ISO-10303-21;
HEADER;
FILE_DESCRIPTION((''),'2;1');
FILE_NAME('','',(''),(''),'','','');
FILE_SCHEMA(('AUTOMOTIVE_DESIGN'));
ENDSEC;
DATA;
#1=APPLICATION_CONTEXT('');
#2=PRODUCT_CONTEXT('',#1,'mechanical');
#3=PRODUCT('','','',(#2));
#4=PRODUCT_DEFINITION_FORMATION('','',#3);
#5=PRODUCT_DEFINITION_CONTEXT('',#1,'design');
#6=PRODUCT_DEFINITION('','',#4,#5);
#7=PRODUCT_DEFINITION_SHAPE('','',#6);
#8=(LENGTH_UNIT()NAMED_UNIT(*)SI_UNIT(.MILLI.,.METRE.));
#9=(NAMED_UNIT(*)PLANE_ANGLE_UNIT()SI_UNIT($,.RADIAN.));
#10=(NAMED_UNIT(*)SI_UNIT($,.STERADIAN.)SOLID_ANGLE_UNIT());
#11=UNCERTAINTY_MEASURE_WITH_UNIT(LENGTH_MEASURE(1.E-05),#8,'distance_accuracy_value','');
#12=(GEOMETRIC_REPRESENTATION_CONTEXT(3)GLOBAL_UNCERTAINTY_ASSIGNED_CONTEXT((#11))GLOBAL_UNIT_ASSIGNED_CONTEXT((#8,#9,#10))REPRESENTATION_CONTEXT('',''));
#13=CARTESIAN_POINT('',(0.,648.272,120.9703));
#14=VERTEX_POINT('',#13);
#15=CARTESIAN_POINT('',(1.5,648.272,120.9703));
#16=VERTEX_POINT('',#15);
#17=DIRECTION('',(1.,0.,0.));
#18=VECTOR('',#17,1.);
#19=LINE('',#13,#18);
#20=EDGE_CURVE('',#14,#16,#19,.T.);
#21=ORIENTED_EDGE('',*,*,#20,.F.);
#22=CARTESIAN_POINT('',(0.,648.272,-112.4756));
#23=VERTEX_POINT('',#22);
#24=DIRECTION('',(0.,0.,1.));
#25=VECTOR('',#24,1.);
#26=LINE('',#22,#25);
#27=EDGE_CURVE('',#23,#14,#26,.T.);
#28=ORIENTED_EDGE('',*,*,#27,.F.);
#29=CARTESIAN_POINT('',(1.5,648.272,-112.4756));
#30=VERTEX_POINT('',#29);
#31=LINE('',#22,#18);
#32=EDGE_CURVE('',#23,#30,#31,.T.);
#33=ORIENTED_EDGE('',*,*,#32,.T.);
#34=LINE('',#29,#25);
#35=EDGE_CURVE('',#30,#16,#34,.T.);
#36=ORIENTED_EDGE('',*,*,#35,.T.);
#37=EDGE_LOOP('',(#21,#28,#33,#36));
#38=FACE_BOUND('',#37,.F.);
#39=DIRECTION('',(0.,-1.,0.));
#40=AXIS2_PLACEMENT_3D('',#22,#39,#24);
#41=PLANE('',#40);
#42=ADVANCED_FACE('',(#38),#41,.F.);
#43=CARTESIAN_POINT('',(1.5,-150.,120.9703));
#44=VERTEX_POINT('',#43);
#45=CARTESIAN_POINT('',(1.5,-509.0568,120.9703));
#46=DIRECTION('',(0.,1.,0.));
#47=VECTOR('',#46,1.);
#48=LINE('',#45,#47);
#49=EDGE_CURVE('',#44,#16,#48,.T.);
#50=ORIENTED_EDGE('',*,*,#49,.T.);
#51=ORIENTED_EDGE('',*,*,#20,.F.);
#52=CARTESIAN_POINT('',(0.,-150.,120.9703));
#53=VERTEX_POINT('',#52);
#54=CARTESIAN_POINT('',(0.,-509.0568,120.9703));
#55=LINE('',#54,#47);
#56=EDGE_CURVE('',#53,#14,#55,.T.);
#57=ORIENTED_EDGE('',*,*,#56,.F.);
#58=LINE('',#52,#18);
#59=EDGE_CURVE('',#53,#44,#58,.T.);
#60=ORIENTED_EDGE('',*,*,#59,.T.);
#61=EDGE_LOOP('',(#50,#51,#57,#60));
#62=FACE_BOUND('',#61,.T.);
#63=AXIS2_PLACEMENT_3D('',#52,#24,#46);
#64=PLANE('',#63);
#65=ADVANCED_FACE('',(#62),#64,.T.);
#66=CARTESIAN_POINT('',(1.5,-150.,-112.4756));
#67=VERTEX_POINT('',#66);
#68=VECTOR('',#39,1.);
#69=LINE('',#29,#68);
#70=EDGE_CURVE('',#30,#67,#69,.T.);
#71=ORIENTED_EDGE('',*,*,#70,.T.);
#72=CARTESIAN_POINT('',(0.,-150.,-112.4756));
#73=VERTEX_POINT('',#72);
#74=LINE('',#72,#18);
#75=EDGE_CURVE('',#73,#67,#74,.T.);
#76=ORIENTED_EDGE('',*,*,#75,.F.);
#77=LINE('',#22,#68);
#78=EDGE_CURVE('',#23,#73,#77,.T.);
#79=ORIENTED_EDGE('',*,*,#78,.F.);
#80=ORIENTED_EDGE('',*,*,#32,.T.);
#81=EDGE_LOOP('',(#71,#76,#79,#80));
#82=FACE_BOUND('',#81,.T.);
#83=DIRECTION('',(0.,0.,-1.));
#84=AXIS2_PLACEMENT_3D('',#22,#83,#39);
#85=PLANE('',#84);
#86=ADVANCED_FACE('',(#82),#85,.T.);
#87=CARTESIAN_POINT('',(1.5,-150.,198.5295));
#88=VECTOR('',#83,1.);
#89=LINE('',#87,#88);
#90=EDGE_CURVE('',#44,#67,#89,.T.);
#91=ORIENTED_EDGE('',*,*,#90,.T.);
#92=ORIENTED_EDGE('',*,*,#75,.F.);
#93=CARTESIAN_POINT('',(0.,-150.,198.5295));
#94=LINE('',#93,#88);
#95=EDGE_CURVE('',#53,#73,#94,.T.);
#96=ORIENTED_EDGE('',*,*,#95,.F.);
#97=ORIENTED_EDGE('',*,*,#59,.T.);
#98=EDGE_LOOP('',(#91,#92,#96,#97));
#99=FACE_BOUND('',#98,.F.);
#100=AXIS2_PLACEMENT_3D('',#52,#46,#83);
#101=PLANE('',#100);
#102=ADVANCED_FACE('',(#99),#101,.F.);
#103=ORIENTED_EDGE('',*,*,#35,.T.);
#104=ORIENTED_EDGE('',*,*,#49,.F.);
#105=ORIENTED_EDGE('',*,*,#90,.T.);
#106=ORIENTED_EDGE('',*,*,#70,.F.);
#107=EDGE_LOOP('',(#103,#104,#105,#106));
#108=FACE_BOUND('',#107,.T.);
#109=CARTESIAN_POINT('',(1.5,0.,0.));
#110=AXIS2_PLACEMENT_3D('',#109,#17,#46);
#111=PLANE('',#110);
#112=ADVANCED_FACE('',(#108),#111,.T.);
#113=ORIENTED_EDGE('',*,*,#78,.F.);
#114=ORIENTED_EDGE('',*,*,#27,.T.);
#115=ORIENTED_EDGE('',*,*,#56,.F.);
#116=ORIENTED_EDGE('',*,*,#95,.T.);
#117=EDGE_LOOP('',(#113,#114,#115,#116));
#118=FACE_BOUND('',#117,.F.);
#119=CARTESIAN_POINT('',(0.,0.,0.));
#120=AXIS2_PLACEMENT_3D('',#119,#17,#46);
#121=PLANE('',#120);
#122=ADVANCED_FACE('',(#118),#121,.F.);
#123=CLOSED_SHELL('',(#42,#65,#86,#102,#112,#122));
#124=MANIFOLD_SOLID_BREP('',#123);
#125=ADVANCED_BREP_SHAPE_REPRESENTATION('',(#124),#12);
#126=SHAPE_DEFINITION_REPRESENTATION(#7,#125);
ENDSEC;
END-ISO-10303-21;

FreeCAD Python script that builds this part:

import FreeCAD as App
import Part
import Sketcher


def add_polygon(sketch, points):
    """Adds a closed chain of lines whose ends are joined by coincident constraints."""
    first, n = sketch.GeometryCount, len(points)
    for a, b in zip(points, points[1:] + points[:1]):
        sketch.addGeometry(Part.LineSegment(App.Vector(*a, 0), App.Vector(*b, 0)), False)
    for i in range(n):
        sketch.addConstraint(Sketcher.Constraint("Coincident", first + i, 2, first + (i + 1) % n, 1))

doc = App.newDocument("Part")
body = doc.addObject("PartDesign::Body", "Body")

sketch1 = body.newObject("Sketcher::SketchObject", "Sketch")
sketch1.AttachmentSupport = (doc.getObject("YZ_Plane"), [""])
sketch1.MapMode = "FlatFace"
add_polygon(sketch1, [(-150, -112), (648, -112), (648, 121), (-150, 121)])
sketch1.addConstraint([
    Sketcher.Constraint("Horizontal", 0),
    Sketcher.Constraint("Vertical", 1),
    Sketcher.Constraint("Horizontal", 2),
    Sketcher.Constraint("Vertical", 3),
    Sketcher.Constraint("DistanceX", 2, 2, -1, 1, 150.0),
    Sketcher.Constraint("DistanceX", 0, 1, 0, 2, 798.272),
    Sketcher.Constraint("DistanceY", 1, 1, 1, 2, 233.446),
    Sketcher.Constraint("DistanceY", 0, 2, -1, 1, 112.4756),
])
pad1 = body.newObject("PartDesign::Pad", "Pad")
pad1.Profile = sketch1
pad1.Length = 1.5

doc.recompute()
